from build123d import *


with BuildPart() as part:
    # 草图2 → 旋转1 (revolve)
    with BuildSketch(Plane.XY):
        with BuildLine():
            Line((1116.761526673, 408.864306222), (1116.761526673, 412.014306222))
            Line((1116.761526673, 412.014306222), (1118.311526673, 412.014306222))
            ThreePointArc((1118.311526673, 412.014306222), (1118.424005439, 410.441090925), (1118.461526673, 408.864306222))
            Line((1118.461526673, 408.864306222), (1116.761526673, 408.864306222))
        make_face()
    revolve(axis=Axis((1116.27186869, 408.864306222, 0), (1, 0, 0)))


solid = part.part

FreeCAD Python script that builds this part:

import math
import FreeCAD as App
import Part
import Sketcher
from FreeCAD import Vector

doc = App.newDocument("Part")
body = doc.addObject("PartDesign::Body", "Body")

# Sketch on XY plane
sketch1 = body.newObject("Sketcher::SketchObject", "Sketch")
sketch1.AttachmentSupport = (doc.getObject("XY_Plane"), [""])
sketch1.MapMode = "FlatFace"
sketch1.addGeometry([
    Part.LineSegment(Vector(1116.761527, 412.014306, 0), Vector(1116.761527, 408.864306, 0)),
    Part.LineSegment(Vector(1116.761527, 408.864306, 0), Vector(1118.461527, 408.864306, 0)),
    Part.ArcOfCircle(Part.Circle(Vector(1085.311527, 408.864306, 0), Vector(0, 0, 1), 33.15), math.radians(0), math.radians(5.452622)),
    Part.LineSegment(Vector(1118.311527, 412.014306, 0), Vector(1116.761527, 412.014306, 0)),
], False)
sketch1.addGeometry(Part.LineSegment(Vector(1085.311527, 408.864306, 0), Vector(1118.461527, 408.864306, 0)), True)  # axis
sketch1.addConstraint([
    Sketcher.Constraint("Coincident", 0, 2, 1, 1),
    Sketcher.Constraint("Coincident", 1, 2, 2, 1),
    Sketcher.Constraint("Coincident", 2, 2, 3, 1),
    Sketcher.Constraint("Coincident", 3, 2, 0, 1),
    Sketcher.Constraint("Vertical", 0),
    Sketcher.Constraint("Horizontal", 1),
    Sketcher.Constraint("Horizontal", 3),
    Sketcher.Constraint("Horizontal", 4),
    Sketcher.Constraint("Coincident", 4, 1, 2, 3),
    Sketcher.Constraint("Coincident", 4, 2, 1, 2),
    Sketcher.Constraint("Radius", 2, 33.15),
    Sketcher.Constraint("DistanceX", 1, 1, 1, 2, 1.7),
    Sketcher.Constraint("DistanceX", 2, 3, 2, 2, 33.0),
    Sketcher.Constraint("DistanceX", -1, 1, 2, 3, 1085.311527),
    Sketcher.Constraint("DistanceY", -1, 1, 2, 3, 408.864306),
])
revolution = body.newObject("PartDesign::Revolution", "Revolution")
revolution.Profile = sketch1
revolution.ReferenceAxis = (sketch1, ["Axis0"])
revolution.Angle = 360

doc.recompute()
